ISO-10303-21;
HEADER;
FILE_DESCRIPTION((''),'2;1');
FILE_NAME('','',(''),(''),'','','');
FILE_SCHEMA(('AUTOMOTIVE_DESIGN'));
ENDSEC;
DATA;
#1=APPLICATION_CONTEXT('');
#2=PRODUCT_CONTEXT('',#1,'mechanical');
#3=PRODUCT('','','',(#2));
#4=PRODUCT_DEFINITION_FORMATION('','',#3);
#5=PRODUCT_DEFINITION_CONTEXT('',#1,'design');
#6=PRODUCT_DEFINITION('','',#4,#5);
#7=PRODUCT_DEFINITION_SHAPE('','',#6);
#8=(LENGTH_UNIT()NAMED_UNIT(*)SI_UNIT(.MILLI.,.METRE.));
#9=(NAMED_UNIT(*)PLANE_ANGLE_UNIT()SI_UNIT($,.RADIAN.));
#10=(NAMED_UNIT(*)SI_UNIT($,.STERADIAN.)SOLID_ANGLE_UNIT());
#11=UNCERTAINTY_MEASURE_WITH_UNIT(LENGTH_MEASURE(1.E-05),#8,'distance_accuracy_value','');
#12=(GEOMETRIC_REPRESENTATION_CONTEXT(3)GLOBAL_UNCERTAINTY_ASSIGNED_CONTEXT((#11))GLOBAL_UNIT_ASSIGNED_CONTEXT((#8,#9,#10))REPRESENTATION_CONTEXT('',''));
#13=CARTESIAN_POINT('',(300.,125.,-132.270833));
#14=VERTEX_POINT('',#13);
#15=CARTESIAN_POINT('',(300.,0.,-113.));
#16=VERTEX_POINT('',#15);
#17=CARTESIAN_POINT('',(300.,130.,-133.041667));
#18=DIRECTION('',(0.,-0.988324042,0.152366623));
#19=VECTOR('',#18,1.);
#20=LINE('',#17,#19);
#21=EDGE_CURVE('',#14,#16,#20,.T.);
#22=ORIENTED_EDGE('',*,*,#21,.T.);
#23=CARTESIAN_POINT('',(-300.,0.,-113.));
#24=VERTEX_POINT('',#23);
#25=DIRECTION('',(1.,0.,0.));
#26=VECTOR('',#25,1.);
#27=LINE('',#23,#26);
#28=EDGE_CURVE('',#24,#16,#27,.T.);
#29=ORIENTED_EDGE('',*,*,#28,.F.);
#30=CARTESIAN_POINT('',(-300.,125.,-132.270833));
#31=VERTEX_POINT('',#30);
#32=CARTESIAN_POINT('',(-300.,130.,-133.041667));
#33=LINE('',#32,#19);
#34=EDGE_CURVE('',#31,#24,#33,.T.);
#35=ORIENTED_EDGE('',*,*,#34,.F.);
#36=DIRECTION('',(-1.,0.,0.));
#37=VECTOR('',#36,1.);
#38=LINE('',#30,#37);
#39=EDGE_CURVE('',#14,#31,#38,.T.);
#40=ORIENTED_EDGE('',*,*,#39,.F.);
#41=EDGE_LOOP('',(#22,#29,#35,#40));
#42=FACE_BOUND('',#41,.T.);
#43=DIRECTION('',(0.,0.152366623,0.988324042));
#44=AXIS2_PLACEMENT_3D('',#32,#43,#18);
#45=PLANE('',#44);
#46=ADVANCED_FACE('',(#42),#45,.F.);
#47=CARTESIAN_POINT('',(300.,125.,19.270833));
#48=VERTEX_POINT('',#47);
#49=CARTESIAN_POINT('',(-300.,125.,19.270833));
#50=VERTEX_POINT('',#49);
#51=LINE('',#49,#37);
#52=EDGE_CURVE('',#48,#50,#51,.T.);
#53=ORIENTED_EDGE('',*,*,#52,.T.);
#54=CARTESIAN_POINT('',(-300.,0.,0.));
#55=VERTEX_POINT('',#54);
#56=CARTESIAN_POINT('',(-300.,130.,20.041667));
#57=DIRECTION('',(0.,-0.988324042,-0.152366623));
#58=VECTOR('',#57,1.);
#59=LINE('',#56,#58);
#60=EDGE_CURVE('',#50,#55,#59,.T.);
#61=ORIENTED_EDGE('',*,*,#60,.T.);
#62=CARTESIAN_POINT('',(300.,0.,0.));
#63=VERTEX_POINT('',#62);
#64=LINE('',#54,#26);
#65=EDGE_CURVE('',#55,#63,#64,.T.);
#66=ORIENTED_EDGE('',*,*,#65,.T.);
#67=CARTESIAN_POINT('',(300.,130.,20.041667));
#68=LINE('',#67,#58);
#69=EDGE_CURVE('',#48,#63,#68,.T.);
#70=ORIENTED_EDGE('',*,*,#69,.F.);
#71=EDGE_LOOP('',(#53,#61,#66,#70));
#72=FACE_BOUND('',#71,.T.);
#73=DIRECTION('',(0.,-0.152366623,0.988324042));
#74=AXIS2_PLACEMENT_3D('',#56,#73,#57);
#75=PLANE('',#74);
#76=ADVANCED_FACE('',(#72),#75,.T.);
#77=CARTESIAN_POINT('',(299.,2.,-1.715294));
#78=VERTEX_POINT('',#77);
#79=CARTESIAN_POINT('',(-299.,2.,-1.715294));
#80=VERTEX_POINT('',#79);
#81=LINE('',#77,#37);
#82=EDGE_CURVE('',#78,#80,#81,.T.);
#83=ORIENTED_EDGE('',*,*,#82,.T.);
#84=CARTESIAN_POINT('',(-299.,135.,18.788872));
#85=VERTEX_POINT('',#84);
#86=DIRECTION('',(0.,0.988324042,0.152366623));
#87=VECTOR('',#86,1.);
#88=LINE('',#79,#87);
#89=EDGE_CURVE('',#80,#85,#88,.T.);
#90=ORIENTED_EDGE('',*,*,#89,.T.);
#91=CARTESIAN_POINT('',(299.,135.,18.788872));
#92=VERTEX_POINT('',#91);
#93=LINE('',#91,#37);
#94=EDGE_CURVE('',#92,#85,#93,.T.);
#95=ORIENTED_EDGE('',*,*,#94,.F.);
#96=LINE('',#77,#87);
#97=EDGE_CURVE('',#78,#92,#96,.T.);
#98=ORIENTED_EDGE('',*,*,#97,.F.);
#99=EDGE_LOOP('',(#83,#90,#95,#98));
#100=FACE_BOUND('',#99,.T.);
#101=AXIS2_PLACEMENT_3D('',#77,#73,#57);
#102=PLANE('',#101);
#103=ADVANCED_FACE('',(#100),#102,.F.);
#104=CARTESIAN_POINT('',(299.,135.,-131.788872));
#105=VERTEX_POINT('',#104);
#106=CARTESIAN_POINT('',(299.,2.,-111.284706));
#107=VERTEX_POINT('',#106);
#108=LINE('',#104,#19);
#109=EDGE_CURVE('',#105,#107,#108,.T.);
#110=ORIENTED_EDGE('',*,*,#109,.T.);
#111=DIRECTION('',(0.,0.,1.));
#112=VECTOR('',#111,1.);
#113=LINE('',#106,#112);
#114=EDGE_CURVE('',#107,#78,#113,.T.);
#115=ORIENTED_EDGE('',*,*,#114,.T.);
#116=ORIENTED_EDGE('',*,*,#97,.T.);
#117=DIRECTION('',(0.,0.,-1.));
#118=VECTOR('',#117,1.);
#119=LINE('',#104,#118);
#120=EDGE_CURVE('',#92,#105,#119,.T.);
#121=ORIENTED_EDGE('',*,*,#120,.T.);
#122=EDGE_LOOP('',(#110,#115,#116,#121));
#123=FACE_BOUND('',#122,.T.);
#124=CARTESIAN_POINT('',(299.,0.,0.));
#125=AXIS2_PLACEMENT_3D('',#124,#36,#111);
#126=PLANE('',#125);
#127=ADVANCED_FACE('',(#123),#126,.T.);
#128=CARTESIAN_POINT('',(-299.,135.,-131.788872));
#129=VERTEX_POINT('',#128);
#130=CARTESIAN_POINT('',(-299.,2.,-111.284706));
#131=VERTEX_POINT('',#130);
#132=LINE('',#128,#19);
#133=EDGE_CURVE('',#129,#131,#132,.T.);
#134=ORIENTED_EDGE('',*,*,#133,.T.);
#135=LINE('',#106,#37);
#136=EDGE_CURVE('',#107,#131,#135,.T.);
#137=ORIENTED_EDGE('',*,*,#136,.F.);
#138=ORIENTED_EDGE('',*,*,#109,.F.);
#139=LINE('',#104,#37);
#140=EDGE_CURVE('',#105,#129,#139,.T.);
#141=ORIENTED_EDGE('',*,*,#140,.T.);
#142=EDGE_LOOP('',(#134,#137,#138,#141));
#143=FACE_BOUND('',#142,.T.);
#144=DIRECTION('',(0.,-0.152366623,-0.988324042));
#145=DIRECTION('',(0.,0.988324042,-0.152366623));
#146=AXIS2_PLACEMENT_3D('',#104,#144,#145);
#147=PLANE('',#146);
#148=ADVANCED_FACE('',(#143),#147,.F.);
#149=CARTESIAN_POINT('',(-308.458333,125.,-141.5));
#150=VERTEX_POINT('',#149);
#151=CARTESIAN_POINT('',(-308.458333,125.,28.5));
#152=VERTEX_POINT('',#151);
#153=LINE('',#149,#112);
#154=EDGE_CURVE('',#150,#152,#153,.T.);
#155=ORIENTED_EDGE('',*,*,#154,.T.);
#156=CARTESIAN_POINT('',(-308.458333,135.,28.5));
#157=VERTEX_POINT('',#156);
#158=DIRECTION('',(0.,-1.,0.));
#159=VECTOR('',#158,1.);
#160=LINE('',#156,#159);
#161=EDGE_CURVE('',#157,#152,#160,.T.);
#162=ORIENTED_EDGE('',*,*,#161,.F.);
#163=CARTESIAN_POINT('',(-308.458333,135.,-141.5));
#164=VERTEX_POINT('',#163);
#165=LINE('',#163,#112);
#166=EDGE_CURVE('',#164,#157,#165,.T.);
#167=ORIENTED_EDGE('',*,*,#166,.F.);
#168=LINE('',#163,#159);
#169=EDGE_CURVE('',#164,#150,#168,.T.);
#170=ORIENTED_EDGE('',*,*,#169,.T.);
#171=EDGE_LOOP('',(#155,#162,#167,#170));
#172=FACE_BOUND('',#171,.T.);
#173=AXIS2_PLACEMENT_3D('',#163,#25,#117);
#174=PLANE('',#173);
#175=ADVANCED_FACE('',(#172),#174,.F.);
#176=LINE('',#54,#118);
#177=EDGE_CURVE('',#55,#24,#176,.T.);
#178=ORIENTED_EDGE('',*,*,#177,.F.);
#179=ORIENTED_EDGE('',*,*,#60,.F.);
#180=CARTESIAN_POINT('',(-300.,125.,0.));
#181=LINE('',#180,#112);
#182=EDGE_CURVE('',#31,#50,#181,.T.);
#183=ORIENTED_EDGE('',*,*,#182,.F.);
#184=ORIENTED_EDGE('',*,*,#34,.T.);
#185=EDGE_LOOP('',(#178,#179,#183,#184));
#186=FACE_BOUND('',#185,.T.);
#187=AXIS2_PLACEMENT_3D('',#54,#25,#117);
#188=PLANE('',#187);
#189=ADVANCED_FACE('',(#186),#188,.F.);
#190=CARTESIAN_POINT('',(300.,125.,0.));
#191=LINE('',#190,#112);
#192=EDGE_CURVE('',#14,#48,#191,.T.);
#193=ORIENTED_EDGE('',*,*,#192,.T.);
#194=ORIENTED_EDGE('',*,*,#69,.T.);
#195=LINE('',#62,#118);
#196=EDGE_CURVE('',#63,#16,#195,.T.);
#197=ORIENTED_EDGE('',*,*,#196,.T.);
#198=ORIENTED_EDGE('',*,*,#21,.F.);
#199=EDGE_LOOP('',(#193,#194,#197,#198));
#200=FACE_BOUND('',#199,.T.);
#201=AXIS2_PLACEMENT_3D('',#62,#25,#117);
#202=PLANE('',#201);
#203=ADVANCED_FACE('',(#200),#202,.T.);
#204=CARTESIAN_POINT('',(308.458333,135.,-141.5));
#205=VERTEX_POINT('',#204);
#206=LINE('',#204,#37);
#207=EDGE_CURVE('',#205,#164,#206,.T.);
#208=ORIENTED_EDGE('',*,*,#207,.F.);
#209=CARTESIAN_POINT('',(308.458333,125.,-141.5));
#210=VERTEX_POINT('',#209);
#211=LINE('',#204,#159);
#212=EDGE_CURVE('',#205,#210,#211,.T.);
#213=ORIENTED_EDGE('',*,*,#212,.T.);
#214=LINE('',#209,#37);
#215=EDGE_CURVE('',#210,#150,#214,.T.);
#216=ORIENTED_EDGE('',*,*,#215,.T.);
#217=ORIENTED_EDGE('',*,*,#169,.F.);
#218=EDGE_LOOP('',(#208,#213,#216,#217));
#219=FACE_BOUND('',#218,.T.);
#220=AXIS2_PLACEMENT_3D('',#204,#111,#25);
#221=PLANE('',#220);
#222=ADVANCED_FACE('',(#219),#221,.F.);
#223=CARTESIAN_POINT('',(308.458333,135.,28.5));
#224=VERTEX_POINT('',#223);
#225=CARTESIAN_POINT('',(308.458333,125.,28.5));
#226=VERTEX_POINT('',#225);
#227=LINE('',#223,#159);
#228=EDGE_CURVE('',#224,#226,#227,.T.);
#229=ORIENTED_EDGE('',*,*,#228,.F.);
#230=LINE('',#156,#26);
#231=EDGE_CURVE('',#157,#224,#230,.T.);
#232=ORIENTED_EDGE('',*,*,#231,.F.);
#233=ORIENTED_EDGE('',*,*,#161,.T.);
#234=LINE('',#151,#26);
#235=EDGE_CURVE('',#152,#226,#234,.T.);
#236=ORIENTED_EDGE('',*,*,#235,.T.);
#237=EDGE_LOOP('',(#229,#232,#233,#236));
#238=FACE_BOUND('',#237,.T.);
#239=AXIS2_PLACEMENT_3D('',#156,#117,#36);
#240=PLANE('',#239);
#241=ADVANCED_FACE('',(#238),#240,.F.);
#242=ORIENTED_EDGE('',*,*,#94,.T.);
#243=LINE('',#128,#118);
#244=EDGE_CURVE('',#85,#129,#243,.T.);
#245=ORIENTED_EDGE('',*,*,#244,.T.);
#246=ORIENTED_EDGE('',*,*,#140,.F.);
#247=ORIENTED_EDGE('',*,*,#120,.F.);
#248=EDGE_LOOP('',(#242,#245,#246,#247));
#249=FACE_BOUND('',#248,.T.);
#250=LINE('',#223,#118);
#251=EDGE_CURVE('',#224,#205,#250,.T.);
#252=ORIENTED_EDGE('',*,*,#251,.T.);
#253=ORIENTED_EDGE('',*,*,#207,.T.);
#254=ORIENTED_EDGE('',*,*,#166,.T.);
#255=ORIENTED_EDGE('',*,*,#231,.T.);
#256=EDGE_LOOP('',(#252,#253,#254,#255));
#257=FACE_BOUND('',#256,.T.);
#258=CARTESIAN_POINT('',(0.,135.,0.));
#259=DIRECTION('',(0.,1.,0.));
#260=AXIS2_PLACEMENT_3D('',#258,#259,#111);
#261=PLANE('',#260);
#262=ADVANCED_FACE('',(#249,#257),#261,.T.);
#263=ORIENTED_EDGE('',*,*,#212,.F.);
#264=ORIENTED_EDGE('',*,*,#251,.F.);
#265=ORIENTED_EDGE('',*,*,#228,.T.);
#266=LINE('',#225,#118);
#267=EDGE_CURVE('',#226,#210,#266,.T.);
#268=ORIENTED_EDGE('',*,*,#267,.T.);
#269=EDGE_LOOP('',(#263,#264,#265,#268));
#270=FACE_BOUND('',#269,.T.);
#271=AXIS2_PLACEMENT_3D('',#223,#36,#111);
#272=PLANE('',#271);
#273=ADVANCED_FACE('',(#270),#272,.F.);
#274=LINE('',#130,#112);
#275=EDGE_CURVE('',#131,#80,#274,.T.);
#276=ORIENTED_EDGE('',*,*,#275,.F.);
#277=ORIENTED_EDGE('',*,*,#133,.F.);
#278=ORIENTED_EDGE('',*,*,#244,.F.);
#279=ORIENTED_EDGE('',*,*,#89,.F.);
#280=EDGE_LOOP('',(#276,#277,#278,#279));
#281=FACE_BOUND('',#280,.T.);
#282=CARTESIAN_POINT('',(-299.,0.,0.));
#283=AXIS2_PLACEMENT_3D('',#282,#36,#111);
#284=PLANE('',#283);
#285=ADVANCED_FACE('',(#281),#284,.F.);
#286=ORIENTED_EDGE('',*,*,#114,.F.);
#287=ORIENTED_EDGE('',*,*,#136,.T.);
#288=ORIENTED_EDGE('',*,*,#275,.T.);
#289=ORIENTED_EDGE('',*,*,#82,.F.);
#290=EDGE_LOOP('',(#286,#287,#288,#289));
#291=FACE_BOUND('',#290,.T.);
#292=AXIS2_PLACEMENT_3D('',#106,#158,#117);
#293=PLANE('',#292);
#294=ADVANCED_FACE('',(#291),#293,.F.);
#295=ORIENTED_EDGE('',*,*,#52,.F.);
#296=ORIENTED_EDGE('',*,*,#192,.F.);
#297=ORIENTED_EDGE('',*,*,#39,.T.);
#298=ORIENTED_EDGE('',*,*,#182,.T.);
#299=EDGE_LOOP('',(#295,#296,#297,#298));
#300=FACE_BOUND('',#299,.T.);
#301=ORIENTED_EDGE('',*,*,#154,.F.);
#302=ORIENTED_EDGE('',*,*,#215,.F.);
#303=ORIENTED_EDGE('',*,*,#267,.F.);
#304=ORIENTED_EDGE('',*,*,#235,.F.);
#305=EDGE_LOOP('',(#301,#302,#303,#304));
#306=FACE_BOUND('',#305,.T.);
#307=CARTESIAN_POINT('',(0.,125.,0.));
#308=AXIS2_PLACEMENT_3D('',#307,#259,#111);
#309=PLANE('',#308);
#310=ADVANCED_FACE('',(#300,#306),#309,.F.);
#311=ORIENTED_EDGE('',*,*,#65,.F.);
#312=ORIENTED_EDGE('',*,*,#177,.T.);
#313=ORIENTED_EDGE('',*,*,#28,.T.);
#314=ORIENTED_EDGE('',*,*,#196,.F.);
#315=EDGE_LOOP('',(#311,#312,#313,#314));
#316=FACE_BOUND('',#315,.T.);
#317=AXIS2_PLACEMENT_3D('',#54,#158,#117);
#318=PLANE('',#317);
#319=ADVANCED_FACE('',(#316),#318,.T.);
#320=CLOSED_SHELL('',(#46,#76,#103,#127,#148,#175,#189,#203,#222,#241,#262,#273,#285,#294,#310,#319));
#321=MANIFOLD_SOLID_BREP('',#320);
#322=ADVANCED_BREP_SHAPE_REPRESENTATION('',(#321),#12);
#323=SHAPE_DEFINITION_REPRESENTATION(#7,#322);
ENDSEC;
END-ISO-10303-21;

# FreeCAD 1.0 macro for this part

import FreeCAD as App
import Part
import Sketcher
from FreeCAD import Vector


def add_polygon(sketch, points):
    """Adds a closed chain of lines whose ends are joined by coincident constraints."""
    first, n = sketch.GeometryCount, len(points)
    for a, b in zip(points, points[1:] + points[:1]):
        sketch.addGeometry(Part.LineSegment(App.Vector(*a, 0), App.Vector(*b, 0)), False)
    for i in range(n):
        sketch.addConstraint(Sketcher.Constraint("Coincident", first + i, 2, first + (i + 1) % n, 1))

doc = App.newDocument("Part")
body = doc.addObject("PartDesign::Body", "Body")

# Sketch on YZ plane
sketch1 = body.newObject("Sketcher::SketchObject", "Sketch")
sketch1.AttachmentSupport = (doc.getObject("YZ_Plane"), [""])
sketch1.MapMode = "FlatFace"
add_polygon(sketch1, [(0, 0), (0, -113), (130, -133), (130, 20)])  # lines 0-3
sketch1.addConstraint([
    Sketcher.Constraint("Vertical", 0),
    Sketcher.Constraint("Vertical", 2),
    Sketcher.Constraint("Coincident", 3, 2, -1, 1),
    Sketcher.Constraint("Equal", 1, 3),
    Sketcher.Constraint("DistanceY", 0, 2, 0, 1, 113.0),
    Sketcher.Constraint("DistanceX", -1, 1, 1, 2, 130.0),
    Sketcher.Constraint("DistanceY", 2, 1, 2, 2, 153.083333),
])
pad1 = body.newObject("PartDesign::Pad", "Pad")
pad1.Profile = sketch1
pad1.Length = 600
pad1.Midplane = True

# Sketch on XZ plane
sketch2 = body.newObject("Sketcher::SketchObject", "Sketch001")
sketch2.AttachmentSupport = (doc.getObject("XZ_Plane"), [""])
sketch2.MapMode = "FlatFace"
sketch2.AttachmentOffset = App.Placement(Vector(0, 0, -130), App.Rotation())
add_polygon(sketch2, [(-308, -141), (-308, 28), (308, 28), (308, -141)])  # lines 0-3
sketch2.addConstraint([
    Sketcher.Constraint("Vertical", 0),
    Sketcher.Constraint("Horizontal", 1),
    Sketcher.Constraint("Vertical", 2),
    Sketcher.Constraint("Horizontal", 3),
    Sketcher.Constraint("DistanceY", 0, 1, 0, 2, 170.0),
    Sketcher.Constraint("DistanceY", -1, 1, 0, 2, 28.5),
    Sketcher.Constraint("DistanceX", 1, 1, 1, 2, 616.916667),
    Sketcher.Constraint("DistanceX", 0, 2, -1, 1, 308.458333),
])
pad2 = body.newObject("PartDesign::Pad", "Pad001")
pad2.Profile = sketch2
pad2.Length = 10
pad2.Midplane = True

# Sketch on YZ plane
sketch3 = body.newObject("Sketcher::SketchObject", "Sketch002")
sketch3.AttachmentSupport = (doc.getObject("YZ_Plane"), [""])
sketch3.MapMode = "FlatFace"
add_polygon(sketch3, [(135, 19), (135, -132), (2, -111), (2, -2)])  # lines 0-3
sketch3.addConstraint([
    Sketcher.Constraint("Vertical", 0),
    Sketcher.Constraint("Vertical", 2),
    Sketcher.Constraint("Equal", 1, 3),
    Sketcher.Constraint("DistanceX", -1, 1, 0, 2, 135.0),
    Sketcher.Constraint("DistanceX", -1, 1, 1, 2, 2.0),
    Sketcher.Constraint("DistanceY", 2, 1, 2, 2, 109.569411),
    Sketcher.Constraint("Distance", 1, 134.571248),
    Sketcher.Constraint("DistanceY", 0, 2, -1, 1, 131.788872),
])
pocket1 = body.newObject("PartDesign::Pocket", "Pocket")
pocket1.Profile = sketch3
pocket1.Length = 598
pocket1.Midplane = True

doc.recompute()
